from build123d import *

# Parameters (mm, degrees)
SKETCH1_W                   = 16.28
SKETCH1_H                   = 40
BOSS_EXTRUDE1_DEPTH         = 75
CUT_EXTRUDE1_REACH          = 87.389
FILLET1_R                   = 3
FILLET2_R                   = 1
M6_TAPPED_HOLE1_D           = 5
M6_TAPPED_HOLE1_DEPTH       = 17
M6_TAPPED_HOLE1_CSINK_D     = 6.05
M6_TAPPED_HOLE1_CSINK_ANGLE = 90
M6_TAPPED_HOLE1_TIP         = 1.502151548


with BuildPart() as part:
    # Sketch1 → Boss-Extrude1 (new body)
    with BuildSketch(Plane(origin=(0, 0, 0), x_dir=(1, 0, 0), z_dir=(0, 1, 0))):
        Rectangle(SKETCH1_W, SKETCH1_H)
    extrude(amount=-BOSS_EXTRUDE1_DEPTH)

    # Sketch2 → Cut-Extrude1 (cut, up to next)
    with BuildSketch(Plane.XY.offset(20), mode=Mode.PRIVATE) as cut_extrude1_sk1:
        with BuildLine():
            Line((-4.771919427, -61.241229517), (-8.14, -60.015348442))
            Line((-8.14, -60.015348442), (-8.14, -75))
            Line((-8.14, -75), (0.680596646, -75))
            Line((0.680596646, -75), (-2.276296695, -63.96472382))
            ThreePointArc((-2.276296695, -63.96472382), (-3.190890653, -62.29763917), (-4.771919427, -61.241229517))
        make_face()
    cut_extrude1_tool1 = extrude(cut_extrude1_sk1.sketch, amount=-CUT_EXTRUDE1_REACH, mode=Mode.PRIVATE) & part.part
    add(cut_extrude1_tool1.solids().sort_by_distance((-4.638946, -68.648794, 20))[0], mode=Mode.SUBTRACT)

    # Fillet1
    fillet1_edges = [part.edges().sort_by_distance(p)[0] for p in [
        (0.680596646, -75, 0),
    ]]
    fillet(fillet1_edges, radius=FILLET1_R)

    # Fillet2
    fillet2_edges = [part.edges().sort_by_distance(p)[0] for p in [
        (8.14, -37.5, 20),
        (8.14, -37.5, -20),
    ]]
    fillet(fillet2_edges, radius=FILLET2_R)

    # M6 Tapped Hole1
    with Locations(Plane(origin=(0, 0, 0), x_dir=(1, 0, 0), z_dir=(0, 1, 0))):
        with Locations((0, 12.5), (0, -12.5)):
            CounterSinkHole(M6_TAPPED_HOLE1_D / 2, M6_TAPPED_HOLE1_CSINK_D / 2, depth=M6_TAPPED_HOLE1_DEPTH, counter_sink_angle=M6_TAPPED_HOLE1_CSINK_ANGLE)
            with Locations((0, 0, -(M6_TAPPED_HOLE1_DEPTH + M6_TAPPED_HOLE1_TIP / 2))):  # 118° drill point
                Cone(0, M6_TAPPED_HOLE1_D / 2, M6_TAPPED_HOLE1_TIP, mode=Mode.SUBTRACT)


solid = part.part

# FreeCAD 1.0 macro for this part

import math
import FreeCAD as App
import Part
import Sketcher
from FreeCAD import Vector
Q = App.Units.Quantity


def edges_at(feature, points):
    """Names of the edges that pass closest to the given points."""
    edges = feature.Shape.Edges
    near = lambda p: min(range(len(edges)), key=lambda i: edges[i].distToShape(Part.Vertex(*p))[0])
    return sorted({f"Edge{near(p) + 1}" for p in points})

doc = App.newDocument("Part")
body = doc.addObject("PartDesign::Body", "Body")

sketch1 = body.newObject("Sketcher::SketchObject", "Sketch")
sketch1.AttachmentSupport = (doc.getObject("XZ_Plane"), [""])
sketch1.MapMode = "FlatFace"
sketch1.addGeometry(Part.LineSegment(Vector(-8.14, -20, 0), Vector(-8.14, 20, 0)), False)
sketch1.addGeometry(Part.LineSegment(Vector(-8.14, 20, 0), Vector(8.14, 20, 0)), False)
sketch1.addGeometry(Part.LineSegment(Vector(8.14, 20, 0), Vector(8.14, -20, 0)), False)
sketch1.addGeometry(Part.LineSegment(Vector(8.14, -20, 0), Vector(-8.14, -20, 0)), False)
sketch1.addConstraint(Sketcher.Constraint("Coincident", 0, 2, 1, 1))
sketch1.addConstraint(Sketcher.Constraint("Coincident", 1, 2, 2, 1))
sketch1.addConstraint(Sketcher.Constraint("Coincident", 2, 2, 3, 1))
sketch1.addConstraint(Sketcher.Constraint("Coincident", 3, 2, 0, 1))
sketch1.addConstraint(Sketcher.Constraint("Vertical", 0))
sketch1.addConstraint(Sketcher.Constraint("Horizontal", 1))
sketch1.addConstraint(Sketcher.Constraint("Vertical", 2))
sketch1.addConstraint(Sketcher.Constraint("Horizontal", 3))
sketch1.addConstraint(Sketcher.Constraint("Symmetric", 0, 2, 2, 2, -1, 1))
sketch1.addConstraint(Sketcher.Constraint("DistanceY", 0, 1, 0, 2, Q("40 mm")))
sketch1.addConstraint(Sketcher.Constraint("DistanceX", 1, 1, 1, 2, Q("16.28 mm")))
pad1 = body.newObject("PartDesign::Pad", "Pad")
pad1.Profile = sketch1
pad1.Length = 75

sketch2 = body.newObject("Sketcher::SketchObject", "Sketch001")
sketch2.AttachmentSupport = (doc.getObject("XY_Plane"), [""])
sketch2.MapMode = "FlatFace"
sketch2.AttachmentOffset = App.Placement(Vector(0, 0, 20), App.Rotation())
sketch2.addGeometry(Part.LineSegment(Vector(-4.771919, -61.24123, 0), Vector(-8.14, -60.015348, 0)), False)
sketch2.addGeometry(Part.LineSegment(Vector(-8.14, -60.015348, 0), Vector(-8.14, -75, 0)), False)
sketch2.addGeometry(Part.LineSegment(Vector(-8.14, -75, 0), Vector(0.680597, -75, 0)), False)
sketch2.addGeometry(Part.LineSegment(Vector(0.680597, -75, 0), Vector(-2.276297, -63.964724, 0)), False)
sketch2.addGeometry(Part.ArcOfCircle(Part.Circle(Vector(-6.14, -65, 0), Vector(0, 0, 1), 4), math.radians(15), math.radians(70)), False)
sketch2.addConstraint(Sketcher.Constraint("Coincident", 0, 2, 1, 1))
sketch2.addConstraint(Sketcher.Constraint("Coincident", 1, 2, 2, 1))
sketch2.addConstraint(Sketcher.Constraint("Coincident", 2, 2, 3, 1))
sketch2.addConstraint(Sketcher.Constraint("Tangent", 3, 2, 4, 1))
sketch2.addConstraint(Sketcher.Constraint("Tangent", 4, 2, 0, 1))
sketch2.addConstraint(Sketcher.Constraint("Vertical", 1))
sketch2.addConstraint(Sketcher.Constraint("Horizontal", 2))
sketch2.addConstraint(Sketcher.Constraint("Radius", 4, Q("4 mm")))
sketch2.addConstraint(Sketcher.Constraint("Angle", 0, Q("160 deg")))
sketch2.addConstraint(Sketcher.Constraint("Angle", 3, Q("105 deg")))
sketch2.addConstraint(Sketcher.Constraint("DistanceY", 4, 3, -1, 1, Q("65 mm")))
sketch2.addConstraint(Sketcher.Constraint("DistanceY", 1, 2, -1, 1, Q("75 mm")))
sketch2.addConstraint(Sketcher.Constraint("DistanceX", 0, 2, 4, 3, Q("2 mm")))
sketch2.addConstraint(Sketcher.Constraint("DistanceX", 4, 3, -1, 1, Q("6.14 mm")))
pocket1 = body.newObject("PartDesign::Pocket", "Pocket")
pocket1.Profile = sketch2
pocket1.Type = "UpToFirst"
doc.recompute()

fillet = body.newObject("PartDesign::Fillet", "Fillet")
fillet.Base = (pocket1, edges_at(pocket1, [(0.681, -75, 0)]))
fillet.Radius = 3
doc.recompute()

fillet2 = body.newObject("PartDesign::Fillet", "Fillet001")
fillet2.Base = (fillet, edges_at(fillet, [(8.14, -37.5, 20), (8.14, -37.5, -20)]))
fillet2.Radius = 1

sketch3 = body.newObject("Sketcher::SketchObject", "Sketch002")
sketch3.AttachmentSupport = (doc.getObject("XZ_Plane"), [""])
sketch3.MapMode = "FlatFace"
sketch3.addGeometry(Part.Circle(Vector(0, -12.5, 0), Vector(0, 0, 1), 2.5), False)
sketch3.addGeometry(Part.Circle(Vector(0, 12.5, 0), Vector(0, 0, 1), 2.5), False)
sketch3.addConstraint(Sketcher.Constraint("Equal", 0, 1))
sketch3.addConstraint(Sketcher.Constraint("Symmetric", 0, 3, 1, 3, -1, 1))
sketch3.addConstraint(Sketcher.Constraint("PointOnObject", 0, 3, -2))
sketch3.addConstraint(Sketcher.Constraint("Diameter", 0, Q("5 mm")))
sketch3.addConstraint(Sketcher.Constraint("DistanceY", 0, 3, 1, 3, Q("25 mm")))
doc.recompute()
hole = body.newObject("PartDesign::Hole", "Hole")
hole.Profile = sketch3
hole.ThreadType = "None"
hole.Diameter = 5
hole.DepthType = "Dimension"
hole.Depth = 17
hole.DrillPoint = "Angled"
hole.DrillPointAngle = 118
hole.HoleCutType = "Countersink"
hole.HoleCutDiameter = 6.05
hole.HoleCutCountersinkAngle = 90
hole.Reversed = True

doc.recompute()
